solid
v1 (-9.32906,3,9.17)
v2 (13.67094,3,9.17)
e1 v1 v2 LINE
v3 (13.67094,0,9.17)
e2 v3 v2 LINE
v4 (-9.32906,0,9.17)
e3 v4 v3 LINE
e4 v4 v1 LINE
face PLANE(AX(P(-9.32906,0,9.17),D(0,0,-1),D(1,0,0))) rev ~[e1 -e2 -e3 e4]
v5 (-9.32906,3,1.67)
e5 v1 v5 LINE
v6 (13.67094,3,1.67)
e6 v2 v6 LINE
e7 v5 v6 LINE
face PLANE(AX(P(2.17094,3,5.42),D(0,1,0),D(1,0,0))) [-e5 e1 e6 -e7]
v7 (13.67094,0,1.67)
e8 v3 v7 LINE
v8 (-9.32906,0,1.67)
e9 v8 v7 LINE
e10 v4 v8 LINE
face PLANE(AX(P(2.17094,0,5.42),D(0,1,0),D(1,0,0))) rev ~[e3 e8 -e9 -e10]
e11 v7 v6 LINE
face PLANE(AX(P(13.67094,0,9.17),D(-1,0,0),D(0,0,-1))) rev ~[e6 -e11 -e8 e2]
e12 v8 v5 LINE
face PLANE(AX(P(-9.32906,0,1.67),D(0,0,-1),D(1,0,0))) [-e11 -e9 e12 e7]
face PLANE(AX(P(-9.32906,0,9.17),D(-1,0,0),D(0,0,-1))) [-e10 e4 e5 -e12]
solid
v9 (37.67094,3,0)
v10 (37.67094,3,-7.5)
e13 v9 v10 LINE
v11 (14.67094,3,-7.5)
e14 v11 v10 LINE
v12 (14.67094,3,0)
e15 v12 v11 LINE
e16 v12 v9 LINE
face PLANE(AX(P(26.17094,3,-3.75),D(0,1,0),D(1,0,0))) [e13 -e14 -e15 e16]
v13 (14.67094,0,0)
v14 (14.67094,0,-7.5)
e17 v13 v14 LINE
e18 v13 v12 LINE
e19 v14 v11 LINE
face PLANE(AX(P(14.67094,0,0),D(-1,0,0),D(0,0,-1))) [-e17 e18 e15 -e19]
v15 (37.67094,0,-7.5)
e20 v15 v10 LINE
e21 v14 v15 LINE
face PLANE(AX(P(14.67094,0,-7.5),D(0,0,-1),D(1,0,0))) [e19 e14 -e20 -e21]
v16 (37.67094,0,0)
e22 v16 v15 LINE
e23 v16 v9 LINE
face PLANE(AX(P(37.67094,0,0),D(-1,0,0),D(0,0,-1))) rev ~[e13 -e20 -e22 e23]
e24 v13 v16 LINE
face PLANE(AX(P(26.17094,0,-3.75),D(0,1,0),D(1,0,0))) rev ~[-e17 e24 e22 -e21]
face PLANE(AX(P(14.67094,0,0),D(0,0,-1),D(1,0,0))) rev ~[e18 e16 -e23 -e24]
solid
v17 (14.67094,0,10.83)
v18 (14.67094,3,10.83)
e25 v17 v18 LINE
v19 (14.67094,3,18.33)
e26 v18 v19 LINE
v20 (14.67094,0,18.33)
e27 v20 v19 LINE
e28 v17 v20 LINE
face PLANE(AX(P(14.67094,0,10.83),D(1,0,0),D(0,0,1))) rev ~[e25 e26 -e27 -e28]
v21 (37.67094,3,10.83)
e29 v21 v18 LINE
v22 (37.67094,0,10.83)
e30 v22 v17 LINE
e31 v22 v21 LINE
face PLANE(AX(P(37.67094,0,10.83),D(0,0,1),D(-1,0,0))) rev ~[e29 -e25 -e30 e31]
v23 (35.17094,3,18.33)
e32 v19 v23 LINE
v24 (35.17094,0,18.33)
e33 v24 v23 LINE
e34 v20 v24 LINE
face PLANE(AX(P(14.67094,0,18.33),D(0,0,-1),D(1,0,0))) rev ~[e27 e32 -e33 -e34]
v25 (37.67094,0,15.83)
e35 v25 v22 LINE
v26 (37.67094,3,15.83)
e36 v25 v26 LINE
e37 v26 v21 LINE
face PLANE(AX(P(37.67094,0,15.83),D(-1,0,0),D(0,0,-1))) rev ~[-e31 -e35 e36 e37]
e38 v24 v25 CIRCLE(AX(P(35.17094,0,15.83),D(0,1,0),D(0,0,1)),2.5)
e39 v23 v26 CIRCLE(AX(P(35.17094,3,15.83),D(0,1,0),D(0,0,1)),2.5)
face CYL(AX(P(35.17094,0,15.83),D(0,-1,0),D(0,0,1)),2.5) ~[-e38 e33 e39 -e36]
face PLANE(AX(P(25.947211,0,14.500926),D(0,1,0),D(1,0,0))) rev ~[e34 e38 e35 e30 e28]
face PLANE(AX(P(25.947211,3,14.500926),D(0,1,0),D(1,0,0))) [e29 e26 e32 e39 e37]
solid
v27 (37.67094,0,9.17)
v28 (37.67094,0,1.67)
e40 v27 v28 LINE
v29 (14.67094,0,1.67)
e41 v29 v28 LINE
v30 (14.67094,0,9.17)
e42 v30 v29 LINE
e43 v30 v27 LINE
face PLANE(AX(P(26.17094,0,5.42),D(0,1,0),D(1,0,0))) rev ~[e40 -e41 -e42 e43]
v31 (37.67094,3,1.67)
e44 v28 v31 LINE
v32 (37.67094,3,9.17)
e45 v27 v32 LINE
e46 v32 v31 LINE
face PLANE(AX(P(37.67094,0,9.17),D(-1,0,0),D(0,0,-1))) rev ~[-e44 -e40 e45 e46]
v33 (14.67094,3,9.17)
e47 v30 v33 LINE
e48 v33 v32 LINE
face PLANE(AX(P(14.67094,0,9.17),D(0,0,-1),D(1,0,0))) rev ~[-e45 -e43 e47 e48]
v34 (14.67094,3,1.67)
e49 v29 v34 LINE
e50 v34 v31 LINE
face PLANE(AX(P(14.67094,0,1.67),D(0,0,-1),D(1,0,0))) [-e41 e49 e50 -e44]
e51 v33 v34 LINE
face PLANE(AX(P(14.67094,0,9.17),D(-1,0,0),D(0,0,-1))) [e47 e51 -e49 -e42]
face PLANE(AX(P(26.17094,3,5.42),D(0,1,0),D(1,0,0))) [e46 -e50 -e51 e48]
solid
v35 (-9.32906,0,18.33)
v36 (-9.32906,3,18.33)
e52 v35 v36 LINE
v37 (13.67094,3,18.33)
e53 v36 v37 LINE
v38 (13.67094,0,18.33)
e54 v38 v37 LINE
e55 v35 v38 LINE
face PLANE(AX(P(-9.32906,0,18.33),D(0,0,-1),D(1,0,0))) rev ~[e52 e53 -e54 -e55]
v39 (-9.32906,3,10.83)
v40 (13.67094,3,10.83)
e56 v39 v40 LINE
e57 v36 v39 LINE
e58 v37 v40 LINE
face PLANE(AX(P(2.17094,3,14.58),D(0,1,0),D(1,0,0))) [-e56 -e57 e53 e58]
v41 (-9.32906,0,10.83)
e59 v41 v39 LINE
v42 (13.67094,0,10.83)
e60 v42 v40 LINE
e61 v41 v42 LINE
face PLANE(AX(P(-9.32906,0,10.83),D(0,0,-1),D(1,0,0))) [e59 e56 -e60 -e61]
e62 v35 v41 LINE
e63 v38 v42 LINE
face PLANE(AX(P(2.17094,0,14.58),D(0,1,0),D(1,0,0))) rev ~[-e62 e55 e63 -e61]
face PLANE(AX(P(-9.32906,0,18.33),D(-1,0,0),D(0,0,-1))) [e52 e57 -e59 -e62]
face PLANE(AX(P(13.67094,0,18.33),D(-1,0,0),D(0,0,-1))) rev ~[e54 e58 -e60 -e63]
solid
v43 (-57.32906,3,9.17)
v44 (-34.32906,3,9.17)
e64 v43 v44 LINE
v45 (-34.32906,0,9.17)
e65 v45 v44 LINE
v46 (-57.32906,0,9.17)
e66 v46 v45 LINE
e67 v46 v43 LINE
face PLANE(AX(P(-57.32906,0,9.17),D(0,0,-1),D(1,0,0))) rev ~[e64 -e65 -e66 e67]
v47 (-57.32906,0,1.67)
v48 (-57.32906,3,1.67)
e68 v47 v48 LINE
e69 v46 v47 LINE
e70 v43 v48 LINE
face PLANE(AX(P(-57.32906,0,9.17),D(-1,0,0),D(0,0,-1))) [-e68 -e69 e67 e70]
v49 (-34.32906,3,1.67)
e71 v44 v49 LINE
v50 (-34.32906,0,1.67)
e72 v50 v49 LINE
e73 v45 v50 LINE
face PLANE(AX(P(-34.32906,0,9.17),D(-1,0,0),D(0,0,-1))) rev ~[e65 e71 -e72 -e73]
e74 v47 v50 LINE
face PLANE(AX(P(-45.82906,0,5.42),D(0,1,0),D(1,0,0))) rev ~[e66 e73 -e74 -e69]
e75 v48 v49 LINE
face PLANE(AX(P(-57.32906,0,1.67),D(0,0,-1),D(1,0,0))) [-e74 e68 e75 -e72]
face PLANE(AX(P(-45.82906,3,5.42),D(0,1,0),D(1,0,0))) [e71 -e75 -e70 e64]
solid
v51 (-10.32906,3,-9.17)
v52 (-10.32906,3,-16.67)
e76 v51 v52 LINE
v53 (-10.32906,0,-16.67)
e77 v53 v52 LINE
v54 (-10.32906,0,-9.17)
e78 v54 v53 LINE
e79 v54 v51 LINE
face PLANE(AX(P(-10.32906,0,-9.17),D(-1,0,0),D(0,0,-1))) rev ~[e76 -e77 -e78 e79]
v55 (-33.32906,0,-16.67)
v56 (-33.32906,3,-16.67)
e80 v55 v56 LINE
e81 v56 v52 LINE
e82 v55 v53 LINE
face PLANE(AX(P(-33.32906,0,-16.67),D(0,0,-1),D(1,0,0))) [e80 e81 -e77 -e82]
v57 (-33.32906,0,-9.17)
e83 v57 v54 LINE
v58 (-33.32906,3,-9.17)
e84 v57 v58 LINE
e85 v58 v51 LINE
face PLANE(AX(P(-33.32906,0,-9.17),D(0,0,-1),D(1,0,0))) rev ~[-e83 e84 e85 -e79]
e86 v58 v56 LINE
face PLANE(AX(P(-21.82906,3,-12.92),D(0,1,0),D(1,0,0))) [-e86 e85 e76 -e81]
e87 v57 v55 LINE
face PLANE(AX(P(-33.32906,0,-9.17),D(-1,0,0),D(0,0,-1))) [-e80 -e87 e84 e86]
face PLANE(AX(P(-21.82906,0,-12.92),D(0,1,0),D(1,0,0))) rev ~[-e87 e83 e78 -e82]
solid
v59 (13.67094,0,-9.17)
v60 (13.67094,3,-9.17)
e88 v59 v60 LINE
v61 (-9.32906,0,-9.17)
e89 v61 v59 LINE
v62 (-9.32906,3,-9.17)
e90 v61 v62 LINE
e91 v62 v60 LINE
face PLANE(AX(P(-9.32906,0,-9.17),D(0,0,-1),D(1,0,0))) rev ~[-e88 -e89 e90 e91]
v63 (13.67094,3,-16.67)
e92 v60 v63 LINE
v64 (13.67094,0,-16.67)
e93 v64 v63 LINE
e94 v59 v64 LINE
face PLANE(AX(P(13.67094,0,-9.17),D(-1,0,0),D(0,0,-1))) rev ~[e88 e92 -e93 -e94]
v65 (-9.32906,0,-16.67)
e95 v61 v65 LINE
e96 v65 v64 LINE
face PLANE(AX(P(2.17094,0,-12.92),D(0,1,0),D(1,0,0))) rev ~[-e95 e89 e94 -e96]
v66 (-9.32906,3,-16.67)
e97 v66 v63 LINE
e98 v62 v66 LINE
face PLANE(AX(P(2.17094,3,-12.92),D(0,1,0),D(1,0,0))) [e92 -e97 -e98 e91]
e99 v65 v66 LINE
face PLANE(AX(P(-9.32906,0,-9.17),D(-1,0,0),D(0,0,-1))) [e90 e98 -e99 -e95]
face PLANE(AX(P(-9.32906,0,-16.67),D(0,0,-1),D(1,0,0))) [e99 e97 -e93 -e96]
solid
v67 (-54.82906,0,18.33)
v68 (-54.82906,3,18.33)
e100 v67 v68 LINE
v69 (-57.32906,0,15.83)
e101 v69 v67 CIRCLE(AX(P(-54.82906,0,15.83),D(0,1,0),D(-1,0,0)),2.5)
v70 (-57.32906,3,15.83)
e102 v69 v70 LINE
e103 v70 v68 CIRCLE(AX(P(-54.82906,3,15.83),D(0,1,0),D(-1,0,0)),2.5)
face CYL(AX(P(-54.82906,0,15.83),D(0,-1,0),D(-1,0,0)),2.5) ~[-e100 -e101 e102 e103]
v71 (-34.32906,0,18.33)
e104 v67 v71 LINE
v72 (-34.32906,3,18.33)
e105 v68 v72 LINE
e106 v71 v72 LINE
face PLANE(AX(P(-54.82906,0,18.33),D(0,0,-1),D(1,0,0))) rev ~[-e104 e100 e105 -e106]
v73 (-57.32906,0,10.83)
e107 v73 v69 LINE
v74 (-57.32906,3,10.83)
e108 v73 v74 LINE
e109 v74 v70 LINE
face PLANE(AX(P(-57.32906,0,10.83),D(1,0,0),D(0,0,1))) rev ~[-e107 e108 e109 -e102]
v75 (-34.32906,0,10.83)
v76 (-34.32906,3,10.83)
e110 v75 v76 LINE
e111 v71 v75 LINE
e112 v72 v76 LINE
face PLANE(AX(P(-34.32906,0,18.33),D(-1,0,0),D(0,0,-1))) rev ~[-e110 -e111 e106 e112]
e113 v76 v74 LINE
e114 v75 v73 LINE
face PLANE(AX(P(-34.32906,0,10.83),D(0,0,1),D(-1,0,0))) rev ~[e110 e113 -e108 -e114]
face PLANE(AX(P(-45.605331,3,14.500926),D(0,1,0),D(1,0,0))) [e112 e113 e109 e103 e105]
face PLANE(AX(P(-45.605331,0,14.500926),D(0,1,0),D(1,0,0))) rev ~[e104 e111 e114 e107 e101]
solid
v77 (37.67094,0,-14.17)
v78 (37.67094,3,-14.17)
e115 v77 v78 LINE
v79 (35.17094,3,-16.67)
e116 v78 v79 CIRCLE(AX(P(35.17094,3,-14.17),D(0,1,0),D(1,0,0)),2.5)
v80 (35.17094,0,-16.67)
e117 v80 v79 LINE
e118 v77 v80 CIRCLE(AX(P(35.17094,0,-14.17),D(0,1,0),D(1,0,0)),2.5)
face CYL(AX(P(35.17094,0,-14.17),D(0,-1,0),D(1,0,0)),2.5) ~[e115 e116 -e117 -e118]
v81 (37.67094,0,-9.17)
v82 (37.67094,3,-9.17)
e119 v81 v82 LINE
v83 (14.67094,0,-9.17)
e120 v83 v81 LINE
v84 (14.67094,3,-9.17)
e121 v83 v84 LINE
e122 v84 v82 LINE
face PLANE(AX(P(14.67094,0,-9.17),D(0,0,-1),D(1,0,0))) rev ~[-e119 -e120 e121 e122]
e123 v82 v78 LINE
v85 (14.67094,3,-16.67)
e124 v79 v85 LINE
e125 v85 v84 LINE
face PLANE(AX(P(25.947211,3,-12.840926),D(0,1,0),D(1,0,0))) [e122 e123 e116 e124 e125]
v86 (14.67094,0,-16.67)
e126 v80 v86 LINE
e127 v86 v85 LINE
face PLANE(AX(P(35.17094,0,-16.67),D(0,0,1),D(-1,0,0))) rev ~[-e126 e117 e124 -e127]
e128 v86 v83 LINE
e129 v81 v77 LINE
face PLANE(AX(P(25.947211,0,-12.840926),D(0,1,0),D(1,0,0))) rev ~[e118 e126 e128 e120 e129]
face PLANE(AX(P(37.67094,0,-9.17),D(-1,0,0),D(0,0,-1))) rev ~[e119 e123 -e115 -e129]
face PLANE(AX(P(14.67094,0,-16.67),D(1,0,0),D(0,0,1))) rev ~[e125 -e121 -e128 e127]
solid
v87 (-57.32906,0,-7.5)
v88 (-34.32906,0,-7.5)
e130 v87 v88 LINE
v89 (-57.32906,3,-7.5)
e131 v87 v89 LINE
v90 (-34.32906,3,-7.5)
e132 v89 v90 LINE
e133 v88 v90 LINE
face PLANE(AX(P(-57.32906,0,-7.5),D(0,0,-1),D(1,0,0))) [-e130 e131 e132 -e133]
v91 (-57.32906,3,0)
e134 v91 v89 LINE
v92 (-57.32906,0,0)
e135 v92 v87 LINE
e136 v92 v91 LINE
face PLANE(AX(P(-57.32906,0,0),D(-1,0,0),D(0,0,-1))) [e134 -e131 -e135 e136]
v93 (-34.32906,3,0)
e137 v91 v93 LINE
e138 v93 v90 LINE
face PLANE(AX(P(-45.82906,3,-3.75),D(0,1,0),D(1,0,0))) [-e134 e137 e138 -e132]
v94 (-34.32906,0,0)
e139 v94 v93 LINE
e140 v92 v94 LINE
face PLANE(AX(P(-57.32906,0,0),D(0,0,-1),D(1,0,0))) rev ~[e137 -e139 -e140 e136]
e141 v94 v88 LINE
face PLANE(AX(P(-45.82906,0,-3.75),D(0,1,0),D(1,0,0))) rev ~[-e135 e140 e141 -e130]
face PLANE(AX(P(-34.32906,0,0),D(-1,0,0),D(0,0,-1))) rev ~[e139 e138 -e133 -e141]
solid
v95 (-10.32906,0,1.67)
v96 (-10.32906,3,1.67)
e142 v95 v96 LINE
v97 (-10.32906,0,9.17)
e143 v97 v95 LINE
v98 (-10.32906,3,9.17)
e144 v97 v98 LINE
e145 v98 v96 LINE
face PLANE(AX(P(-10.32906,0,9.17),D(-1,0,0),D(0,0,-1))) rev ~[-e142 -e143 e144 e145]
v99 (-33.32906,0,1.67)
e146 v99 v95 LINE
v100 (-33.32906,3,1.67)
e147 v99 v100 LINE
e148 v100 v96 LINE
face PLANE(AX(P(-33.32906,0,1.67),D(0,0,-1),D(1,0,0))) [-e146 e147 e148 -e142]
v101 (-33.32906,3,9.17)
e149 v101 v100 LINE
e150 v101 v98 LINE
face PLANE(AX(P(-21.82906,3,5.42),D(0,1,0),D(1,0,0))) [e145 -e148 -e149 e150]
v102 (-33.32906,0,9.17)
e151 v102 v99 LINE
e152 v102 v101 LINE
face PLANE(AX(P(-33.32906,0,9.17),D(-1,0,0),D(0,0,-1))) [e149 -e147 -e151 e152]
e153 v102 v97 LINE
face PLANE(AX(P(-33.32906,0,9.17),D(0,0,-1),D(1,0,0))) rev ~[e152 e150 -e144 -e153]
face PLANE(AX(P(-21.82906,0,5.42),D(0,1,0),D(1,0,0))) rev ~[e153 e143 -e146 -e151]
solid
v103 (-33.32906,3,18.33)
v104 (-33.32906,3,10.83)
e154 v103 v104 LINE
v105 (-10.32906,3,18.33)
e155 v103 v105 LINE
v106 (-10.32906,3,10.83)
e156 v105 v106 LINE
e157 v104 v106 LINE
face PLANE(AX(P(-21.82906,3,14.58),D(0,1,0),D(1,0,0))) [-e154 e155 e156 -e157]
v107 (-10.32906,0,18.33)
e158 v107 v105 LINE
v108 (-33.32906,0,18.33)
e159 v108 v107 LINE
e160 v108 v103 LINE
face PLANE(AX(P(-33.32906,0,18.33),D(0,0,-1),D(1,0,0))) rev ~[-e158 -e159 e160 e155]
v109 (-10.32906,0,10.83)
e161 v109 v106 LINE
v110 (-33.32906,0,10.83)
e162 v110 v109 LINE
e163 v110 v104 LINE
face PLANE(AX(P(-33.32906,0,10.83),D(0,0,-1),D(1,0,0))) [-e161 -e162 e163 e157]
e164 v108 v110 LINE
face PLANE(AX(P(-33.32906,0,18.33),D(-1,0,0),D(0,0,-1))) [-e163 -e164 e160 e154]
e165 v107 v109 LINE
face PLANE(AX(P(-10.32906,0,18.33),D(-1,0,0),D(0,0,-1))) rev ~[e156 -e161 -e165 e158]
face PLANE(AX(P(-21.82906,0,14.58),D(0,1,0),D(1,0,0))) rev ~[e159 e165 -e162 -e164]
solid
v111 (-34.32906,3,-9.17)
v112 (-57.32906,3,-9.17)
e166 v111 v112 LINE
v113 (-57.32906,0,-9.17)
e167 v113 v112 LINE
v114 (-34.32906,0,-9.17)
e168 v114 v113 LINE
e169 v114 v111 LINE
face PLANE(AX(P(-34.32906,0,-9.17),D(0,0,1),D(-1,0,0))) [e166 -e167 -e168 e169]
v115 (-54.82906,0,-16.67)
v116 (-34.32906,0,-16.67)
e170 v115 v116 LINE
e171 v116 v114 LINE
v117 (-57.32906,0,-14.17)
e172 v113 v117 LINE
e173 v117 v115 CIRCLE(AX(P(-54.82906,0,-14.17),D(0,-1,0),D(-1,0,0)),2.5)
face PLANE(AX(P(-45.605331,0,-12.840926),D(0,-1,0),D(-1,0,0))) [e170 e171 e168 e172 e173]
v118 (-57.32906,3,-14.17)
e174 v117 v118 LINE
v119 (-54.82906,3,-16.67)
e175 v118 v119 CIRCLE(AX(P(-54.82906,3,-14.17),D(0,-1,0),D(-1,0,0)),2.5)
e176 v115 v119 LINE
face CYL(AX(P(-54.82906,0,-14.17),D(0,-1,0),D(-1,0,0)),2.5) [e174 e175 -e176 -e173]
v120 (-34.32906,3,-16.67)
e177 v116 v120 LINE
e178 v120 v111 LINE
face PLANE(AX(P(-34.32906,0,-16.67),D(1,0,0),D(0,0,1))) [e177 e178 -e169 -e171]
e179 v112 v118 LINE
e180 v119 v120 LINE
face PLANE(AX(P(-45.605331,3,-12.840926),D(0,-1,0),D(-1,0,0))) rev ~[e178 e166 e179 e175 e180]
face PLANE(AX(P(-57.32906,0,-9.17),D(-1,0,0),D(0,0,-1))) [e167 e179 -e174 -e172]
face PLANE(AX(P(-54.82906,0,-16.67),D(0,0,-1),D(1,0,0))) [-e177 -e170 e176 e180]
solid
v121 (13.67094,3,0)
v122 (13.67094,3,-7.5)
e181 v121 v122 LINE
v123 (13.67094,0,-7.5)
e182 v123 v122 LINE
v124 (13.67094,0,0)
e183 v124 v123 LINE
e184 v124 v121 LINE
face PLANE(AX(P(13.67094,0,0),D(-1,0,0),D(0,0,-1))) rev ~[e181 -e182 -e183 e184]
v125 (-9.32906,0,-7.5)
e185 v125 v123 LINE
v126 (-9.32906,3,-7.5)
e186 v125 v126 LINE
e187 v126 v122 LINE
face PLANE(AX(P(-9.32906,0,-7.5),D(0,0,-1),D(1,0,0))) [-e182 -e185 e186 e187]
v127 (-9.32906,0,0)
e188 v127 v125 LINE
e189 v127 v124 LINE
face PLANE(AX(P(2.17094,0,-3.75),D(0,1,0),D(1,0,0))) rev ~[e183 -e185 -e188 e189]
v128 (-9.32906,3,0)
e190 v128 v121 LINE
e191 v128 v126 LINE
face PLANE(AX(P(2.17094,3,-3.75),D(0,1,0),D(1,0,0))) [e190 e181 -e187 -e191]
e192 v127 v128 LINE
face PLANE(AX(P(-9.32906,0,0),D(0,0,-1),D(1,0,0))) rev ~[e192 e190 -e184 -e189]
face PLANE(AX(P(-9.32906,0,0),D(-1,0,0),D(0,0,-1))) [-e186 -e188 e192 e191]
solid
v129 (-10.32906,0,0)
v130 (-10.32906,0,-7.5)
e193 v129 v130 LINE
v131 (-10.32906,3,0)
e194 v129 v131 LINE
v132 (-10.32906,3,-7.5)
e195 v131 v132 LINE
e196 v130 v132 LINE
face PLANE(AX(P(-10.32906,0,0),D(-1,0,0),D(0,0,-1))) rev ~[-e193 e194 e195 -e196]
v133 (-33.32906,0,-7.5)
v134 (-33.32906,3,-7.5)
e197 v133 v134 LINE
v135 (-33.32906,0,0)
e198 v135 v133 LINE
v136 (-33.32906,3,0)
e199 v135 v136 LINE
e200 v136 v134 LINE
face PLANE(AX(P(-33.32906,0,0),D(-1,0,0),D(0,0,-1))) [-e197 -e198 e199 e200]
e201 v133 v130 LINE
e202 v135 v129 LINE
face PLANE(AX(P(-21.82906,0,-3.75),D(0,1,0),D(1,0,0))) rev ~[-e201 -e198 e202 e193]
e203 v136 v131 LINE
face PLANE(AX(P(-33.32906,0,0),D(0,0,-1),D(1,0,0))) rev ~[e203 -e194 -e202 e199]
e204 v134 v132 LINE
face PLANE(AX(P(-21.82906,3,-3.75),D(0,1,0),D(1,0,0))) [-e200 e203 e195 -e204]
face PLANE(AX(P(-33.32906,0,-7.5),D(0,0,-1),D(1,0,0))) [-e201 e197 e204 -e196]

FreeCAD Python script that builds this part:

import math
import FreeCAD as App
import Part
import Sketcher

V = App.Vector

doc = App.newDocument("Part")
body = doc.addObject("PartDesign::Body", "Body")

sketch1 = body.newObject("Sketcher::SketchObject", "Sketch")
sketch1.AttachmentSupport = (doc.getObject("XZ_Plane"), [""])
sketch1.MapMode = "FlatFace"
sketch1.addGeometry(Part.LineSegment(V(-34.3, -16.7, 0), V(-54.8, -16.7, 0)), False)
sketch1.addGeometry(Part.ArcOfCircle(Part.Circle(V(-54.8, -14.2, 0), V(0, 0, 1), 2.5), math.radians(180), math.radians(270)), False)
sketch1.addGeometry(Part.LineSegment(V(-57.3, -14.2, 0), V(-57.3, -9.2, 0)), False)
sketch1.addGeometry(Part.LineSegment(V(-57.3, -9.2, 0), V(-34.3, -9.2, 0)), False)
sketch1.addGeometry(Part.LineSegment(V(-34.3, -9.2, 0), V(-34.3, -16.7, 0)), False)
sketch1.addConstraint(Sketcher.Constraint("Tangent", 0, 2, 1, 2))
sketch1.addConstraint(Sketcher.Constraint("Tangent", 1, 1, 2, 1))
sketch1.addConstraint(Sketcher.Constraint("Coincident", 2, 2, 3, 1))
sketch1.addConstraint(Sketcher.Constraint("Coincident", 3, 2, 4, 1))
sketch1.addConstraint(Sketcher.Constraint("Coincident", 4, 2, 0, 1))
sketch1.addConstraint(Sketcher.Constraint("Horizontal", 0))
sketch1.addConstraint(Sketcher.Constraint("Vertical", 2))
sketch1.addConstraint(Sketcher.Constraint("Horizontal", 3))
sketch1.addConstraint(Sketcher.Constraint("Vertical", 4))
sketch1.addConstraint(Sketcher.Constraint("Radius", 1, 2.5))
sketch1.addConstraint(Sketcher.Constraint("DistanceX", 3, 1, 3, 2, 23.0))
sketch1.addConstraint(Sketcher.Constraint("DistanceY", 2, 1, 2, 2, 5.0))
sketch1.addConstraint(Sketcher.Constraint("DistanceY", 1, 3, -1, 1, 14.17))
sketch1.addConstraint(Sketcher.Constraint("DistanceX", 1, 3, -1, 1, 54.82906))
pad1 = body.newObject("PartDesign::Pad", "Pad")
pad1.Profile = sketch1
pad1.Length = 3
pad1.Reversed = True
body2 = doc.addObject("PartDesign::Body", "Body001")

sketch2 = body2.newObject("Sketcher::SketchObject", "Sketch001")
sketch2.AttachmentSupport = (doc.getObject("XZ_Plane001"), [""])
sketch2.MapMode = "FlatFace"
sketch2.addGeometry(Part.LineSegment(V(-57, -8, 0), V(-57, 0, 0)), False)
sketch2.addGeometry(Part.LineSegment(V(-57, 0, 0), V(-34, 0, 0)), False)
sketch2.addGeometry(Part.LineSegment(V(-34, 0, 0), V(-34, -8, 0)), False)
sketch2.addGeometry(Part.LineSegment(V(-34, -8, 0), V(-57, -8, 0)), False)
sketch2.addConstraint(Sketcher.Constraint("Coincident", 0, 2, 1, 1))
sketch2.addConstraint(Sketcher.Constraint("Coincident", 1, 2, 2, 1))
sketch2.addConstraint(Sketcher.Constraint("Coincident", 2, 2, 3, 1))
sketch2.addConstraint(Sketcher.Constraint("Coincident", 3, 2, 0, 1))
sketch2.addConstraint(Sketcher.Constraint("Vertical", 0))
sketch2.addConstraint(Sketcher.Constraint("Horizontal", 1))
sketch2.addConstraint(Sketcher.Constraint("Vertical", 2))
sketch2.addConstraint(Sketcher.Constraint("Horizontal", 3))
sketch2.addConstraint(Sketcher.Constraint("PointOnObject", 0, 2, -1))
sketch2.addConstraint(Sketcher.Constraint("DistanceX", 1, 1, 1, 2, 23.0))
sketch2.addConstraint(Sketcher.Constraint("DistanceY", 0, 1, 0, 2, 7.5))
sketch2.addConstraint(Sketcher.Constraint("DistanceX", 0, 2, -1, 1, 57.32906))
pad2 = body2.newObject("PartDesign::Pad", "Pad001")
pad2.Profile = sketch2
pad2.Length = 3
pad2.Reversed = True
body3 = doc.addObject("PartDesign::Body", "Body002")

sketch3 = body3.newObject("Sketcher::SketchObject", "Sketch002")
sketch3.AttachmentSupport = (doc.getObject("XZ_Plane002"), [""])
sketch3.MapMode = "FlatFace"
sketch3.addGeometry(Part.LineSegment(V(-57, 2, 0), V(-57, 9, 0)), False)
sketch3.addGeometry(Part.LineSegment(V(-57, 9, 0), V(-34, 9, 0)), False)
sketch3.addGeometry(Part.LineSegment(V(-34, 9, 0), V(-34, 2, 0)), False)
sketch3.addGeometry(Part.LineSegment(V(-34, 2, 0), V(-57, 2, 0)), False)
sketch3.addConstraint(Sketcher.Constraint("Coincident", 0, 2, 1, 1))
sketch3.addConstraint(Sketcher.Constraint("Coincident", 1, 2, 2, 1))
sketch3.addConstraint(Sketcher.Constraint("Coincident", 2, 2, 3, 1))
sketch3.addConstraint(Sketcher.Constraint("Coincident", 3, 2, 0, 1))
sketch3.addConstraint(Sketcher.Constraint("Vertical", 0))
sketch3.addConstraint(Sketcher.Constraint("Horizontal", 1))
sketch3.addConstraint(Sketcher.Constraint("Vertical", 2))
sketch3.addConstraint(Sketcher.Constraint("Horizontal", 3))
sketch3.addConstraint(Sketcher.Constraint("DistanceX", 1, 1, 1, 2, 23.0))
sketch3.addConstraint(Sketcher.Constraint("DistanceY", 0, 1, 0, 2, 7.5))
sketch3.addConstraint(Sketcher.Constraint("DistanceY", -1, 1, 0, 2, 9.17))
sketch3.addConstraint(Sketcher.Constraint("DistanceX", 0, 2, -1, 1, 57.32906))
pad3 = body3.newObject("PartDesign::Pad", "Pad002")
pad3.Profile = sketch3
pad3.Length = 3
pad3.Reversed = True
body4 = doc.addObject("PartDesign::Body", "Body003")

sketch4 = body4.newObject("Sketcher::SketchObject", "Sketch003")
sketch4.AttachmentSupport = (doc.getObject("XZ_Plane003"), [""])
sketch4.MapMode = "FlatFace"
sketch4.addGeometry(Part.LineSegment(V(-57.3, 10.8, 0), V(-57.3, 15.8, 0)), False)
sketch4.addGeometry(Part.ArcOfCircle(Part.Circle(V(-54.8, 15.8, 0), V(0, 0, 1), 2.5), math.radians(90), math.radians(180)), False)
sketch4.addGeometry(Part.LineSegment(V(-54.8, 18.3, 0), V(-34.3, 18.3, 0)), False)
sketch4.addGeometry(Part.LineSegment(V(-34.3, 18.3, 0), V(-34.3, 10.8, 0)), False)
sketch4.addGeometry(Part.LineSegment(V(-34.3, 10.8, 0), V(-57.3, 10.8, 0)), False)
sketch4.addConstraint(Sketcher.Constraint("Tangent", 0, 2, 1, 2))
sketch4.addConstraint(Sketcher.Constraint("Tangent", 1, 1, 2, 1))
sketch4.addConstraint(Sketcher.Constraint("Coincident", 2, 2, 3, 1))
sketch4.addConstraint(Sketcher.Constraint("Coincident", 3, 2, 4, 1))
sketch4.addConstraint(Sketcher.Constraint("Coincident", 4, 2, 0, 1))
sketch4.addConstraint(Sketcher.Constraint("Vertical", 0))
sketch4.addConstraint(Sketcher.Constraint("Horizontal", 2))
sketch4.addConstraint(Sketcher.Constraint("Vertical", 3))
sketch4.addConstraint(Sketcher.Constraint("Horizontal", 4))
sketch4.addConstraint(Sketcher.Constraint("Radius", 1, 2.5))
sketch4.addConstraint(Sketcher.Constraint("DistanceX", 4, 2, 4, 1, 23.0))
sketch4.addConstraint(Sketcher.Constraint("DistanceY", 0, 1, 0, 2, 5.0))
sketch4.addConstraint(Sketcher.Constraint("DistanceY", -1, 1, 1, 3, 15.83))
sketch4.addConstraint(Sketcher.Constraint("DistanceX", 1, 3, -1, 1, 54.82906))
pad4 = body4.newObject("PartDesign::Pad", "Pad003")
pad4.Profile = sketch4
pad4.Length = 3
pad4.Reversed = True
body5 = doc.addObject("PartDesign::Body", "Body004")

sketch5 = body5.newObject("Sketcher::SketchObject", "Sketch004")
sketch5.AttachmentSupport = (doc.getObject("XZ_Plane004"), [""])
sketch5.MapMode = "FlatFace"
sketch5.addGeometry(Part.LineSegment(V(-33, 11, 0), V(-33, 18, 0)), False)
sketch5.addGeometry(Part.LineSegment(V(-33, 18, 0), V(-10, 18, 0)), False)
sketch5.addGeometry(Part.LineSegment(V(-10, 18, 0), V(-10, 11, 0)), False)
sketch5.addGeometry(Part.LineSegment(V(-10, 11, 0), V(-33, 11, 0)), False)
sketch5.addConstraint(Sketcher.Constraint("Coincident", 0, 2, 1, 1))
sketch5.addConstraint(Sketcher.Constraint("Coincident", 1, 2, 2, 1))
sketch5.addConstraint(Sketcher.Constraint("Coincident", 2, 2, 3, 1))
sketch5.addConstraint(Sketcher.Constraint("Coincident", 3, 2, 0, 1))
sketch5.addConstraint(Sketcher.Constraint("Vertical", 0))
sketch5.addConstraint(Sketcher.Constraint("Horizontal", 1))
sketch5.addConstraint(Sketcher.Constraint("Vertical", 2))
sketch5.addConstraint(Sketcher.Constraint("Horizontal", 3))
sketch5.addConstraint(Sketcher.Constraint("DistanceX", 1, 1, 1, 2, 23.0))
sketch5.addConstraint(Sketcher.Constraint("DistanceY", 0, 1, 0, 2, 7.5))
sketch5.addConstraint(Sketcher.Constraint("DistanceY", -1, 1, 0, 2, 18.33))
sketch5.addConstraint(Sketcher.Constraint("DistanceX", 0, 2, -1, 1, 33.32906))
pad5 = body5.newObject("PartDesign::Pad", "Pad004")
pad5.Profile = sketch5
pad5.Length = 3
pad5.Reversed = True
body6 = doc.addObject("PartDesign::Body", "Body005")

sketch6 = body6.newObject("Sketcher::SketchObject", "Sketch005")
sketch6.AttachmentSupport = (doc.getObject("XZ_Plane005"), [""])
sketch6.MapMode = "FlatFace"
sketch6.addGeometry(Part.LineSegment(V(-33, 2, 0), V(-33, 9, 0)), False)
sketch6.addGeometry(Part.LineSegment(V(-33, 9, 0), V(-10, 9, 0)), False)
sketch6.addGeometry(Part.LineSegment(V(-10, 9, 0), V(-10, 2, 0)), False)
sketch6.addGeometry(Part.LineSegment(V(-10, 2, 0), V(-33, 2, 0)), False)
sketch6.addConstraint(Sketcher.Constraint("Coincident", 0, 2, 1, 1))
sketch6.addConstraint(Sketcher.Constraint("Coincident", 1, 2, 2, 1))
sketch6.addConstraint(Sketcher.Constraint("Coincident", 2, 2, 3, 1))
sketch6.addConstraint(Sketcher.Constraint("Coincident", 3, 2, 0, 1))
sketch6.addConstraint(Sketcher.Constraint("Vertical", 0))
sketch6.addConstraint(Sketcher.Constraint("Horizontal", 1))
sketch6.addConstraint(Sketcher.Constraint("Vertical", 2))
sketch6.addConstraint(Sketcher.Constraint("Horizontal", 3))
sketch6.addConstraint(Sketcher.Constraint("DistanceX", 1, 1, 1, 2, 23.0))
sketch6.addConstraint(Sketcher.Constraint("DistanceY", 0, 1, 0, 2, 7.5))
sketch6.addConstraint(Sketcher.Constraint("DistanceY", -1, 1, 0, 2, 9.17))
sketch6.addConstraint(Sketcher.Constraint("DistanceX", 0, 2, -1, 1, 33.32906))
pad6 = body6.newObject("PartDesign::Pad", "Pad005")
pad6.Profile = sketch6
pad6.Length = 3
pad6.Reversed = True
body7 = doc.addObject("PartDesign::Body", "Body006")

sketch7 = body7.newObject("Sketcher::SketchObject", "Sketch006")
sketch7.AttachmentSupport = (doc.getObject("XZ_Plane006"), [""])
sketch7.MapMode = "FlatFace"
sketch7.addGeometry(Part.LineSegment(V(-33, -8, 0), V(-33, 0, 0)), False)
sketch7.addGeometry(Part.LineSegment(V(-33, 0, 0), V(-10, 0, 0)), False)
sketch7.addGeometry(Part.LineSegment(V(-10, 0, 0), V(-10, -8, 0)), False)
sketch7.addGeometry(Part.LineSegment(V(-10, -8, 0), V(-33, -8, 0)), False)
sketch7.addConstraint(Sketcher.Constraint("Coincident", 0, 2, 1, 1))
sketch7.addConstraint(Sketcher.Constraint("Coincident", 1, 2, 2, 1))
sketch7.addConstraint(Sketcher.Constraint("Coincident", 2, 2, 3, 1))
sketch7.addConstraint(Sketcher.Constraint("Coincident", 3, 2, 0, 1))
sketch7.addConstraint(Sketcher.Constraint("Vertical", 0))
sketch7.addConstraint(Sketcher.Constraint("Horizontal", 1))
sketch7.addConstraint(Sketcher.Constraint("Vertical", 2))
sketch7.addConstraint(Sketcher.Constraint("Horizontal", 3))
sketch7.addConstraint(Sketcher.Constraint("PointOnObject", 0, 2, -1))
sketch7.addConstraint(Sketcher.Constraint("DistanceX", 1, 1, 1, 2, 23.0))
sketch7.addConstraint(Sketcher.Constraint("DistanceY", 0, 1, 0, 2, 7.5))
sketch7.addConstraint(Sketcher.Constraint("DistanceX", 0, 2, -1, 1, 33.32906))
pad7 = body7.newObject("PartDesign::Pad", "Pad006")
pad7.Profile = sketch7
pad7.Length = 3
pad7.Reversed = True
body8 = doc.addObject("PartDesign::Body", "Body007")

sketch8 = body8.newObject("Sketcher::SketchObject", "Sketch007")
sketch8.AttachmentSupport = (doc.getObject("XZ_Plane007"), [""])
sketch8.MapMode = "FlatFace"
sketch8.addGeometry(Part.LineSegment(V(-33, -17, 0), V(-33, -9, 0)), False)
sketch8.addGeometry(Part.LineSegment(V(-33, -9, 0), V(-10, -9, 0)), False)
sketch8.addGeometry(Part.LineSegment(V(-10, -9, 0), V(-10, -17, 0)), False)
sketch8.addGeometry(Part.LineSegment(V(-10, -17, 0), V(-33, -17, 0)), False)
sketch8.addConstraint(Sketcher.Constraint("Coincident", 0, 2, 1, 1))
sketch8.addConstraint(Sketcher.Constraint("Coincident", 1, 2, 2, 1))
sketch8.addConstraint(Sketcher.Constraint("Coincident", 2, 2, 3, 1))
sketch8.addConstraint(Sketcher.Constraint("Coincident", 3, 2, 0, 1))
sketch8.addConstraint(Sketcher.Constraint("Vertical", 0))
sketch8.addConstraint(Sketcher.Constraint("Horizontal", 1))
sketch8.addConstraint(Sketcher.Constraint("Vertical", 2))
sketch8.addConstraint(Sketcher.Constraint("Horizontal", 3))
sketch8.addConstraint(Sketcher.Constraint("DistanceX", 1, 1, 1, 2, 23.0))
sketch8.addConstraint(Sketcher.Constraint("DistanceY", 0, 1, 0, 2, 7.5))
sketch8.addConstraint(Sketcher.Constraint("DistanceY", 0, 2, -1, 1, 9.17))
sketch8.addConstraint(Sketcher.Constraint("DistanceX", 0, 2, -1, 1, 33.32906))
pad8 = body8.newObject("PartDesign::Pad", "Pad007")
pad8.Profile = sketch8
pad8.Length = 3
pad8.Reversed = True
body9 = doc.addObject("PartDesign::Body", "Body008")

sketch9 = body9.newObject("Sketcher::SketchObject", "Sketch008")
sketch9.AttachmentSupport = (doc.getObject("XZ_Plane008"), [""])
sketch9.MapMode = "FlatFace"
sketch9.addGeometry(Part.LineSegment(V(-9, -17, 0), V(-9, -9, 0)), False)
sketch9.addGeometry(Part.LineSegment(V(-9, -9, 0), V(14, -9, 0)), False)
sketch9.addGeometry(Part.LineSegment(V(14, -9, 0), V(14, -17, 0)), False)
sketch9.addGeometry(Part.LineSegment(V(14, -17, 0), V(-9, -17, 0)), False)
sketch9.addConstraint(Sketcher.Constraint("Coincident", 0, 2, 1, 1))
sketch9.addConstraint(Sketcher.Constraint("Coincident", 1, 2, 2, 1))
sketch9.addConstraint(Sketcher.Constraint("Coincident", 2, 2, 3, 1))
sketch9.addConstraint(Sketcher.Constraint("Coincident", 3, 2, 0, 1))
sketch9.addConstraint(Sketcher.Constraint("Vertical", 0))
sketch9.addConstraint(Sketcher.Constraint("Horizontal", 1))
sketch9.addConstraint(Sketcher.Constraint("Vertical", 2))
sketch9.addConstraint(Sketcher.Constraint("Horizontal", 3))
sketch9.addConstraint(Sketcher.Constraint("DistanceX", 1, 1, 1, 2, 23.0))
sketch9.addConstraint(Sketcher.Constraint("DistanceY", 0, 1, 0, 2, 7.5))
sketch9.addConstraint(Sketcher.Constraint("DistanceY", 0, 2, -1, 1, 9.17))
sketch9.addConstraint(Sketcher.Constraint("DistanceX", 0, 2, -1, 1, 9.32906))
pad9 = body9.newObject("PartDesign::Pad", "Pad008")
pad9.Profile = sketch9
pad9.Length = 3
pad9.Reversed = True
body10 = doc.addObject("PartDesign::Body", "Body009")

sketch10 = body10.newObject("Sketcher::SketchObject", "Sketch009")
sketch10.AttachmentSupport = (doc.getObject("XZ_Plane009"), [""])
sketch10.MapMode = "FlatFace"
sketch10.addGeometry(Part.LineSegment(V(-9, -8, 0), V(-9, 0, 0)), False)
sketch10.addGeometry(Part.LineSegment(V(-9, 0, 0), V(14, 0, 0)), False)
sketch10.addGeometry(Part.LineSegment(V(14, 0, 0), V(14, -8, 0)), False)
sketch10.addGeometry(Part.LineSegment(V(14, -8, 0), V(-9, -8, 0)), False)
sketch10.addConstraint(Sketcher.Constraint("Coincident", 0, 2, 1, 1))
sketch10.addConstraint(Sketcher.Constraint("Coincident", 1, 2, 2, 1))
sketch10.addConstraint(Sketcher.Constraint("Coincident", 2, 2, 3, 1))
sketch10.addConstraint(Sketcher.Constraint("Coincident", 3, 2, 0, 1))
sketch10.addConstraint(Sketcher.Constraint("Vertical", 0))
sketch10.addConstraint(Sketcher.Constraint("Horizontal", 1))
sketch10.addConstraint(Sketcher.Constraint("Vertical", 2))
sketch10.addConstraint(Sketcher.Constraint("Horizontal", 3))
sketch10.addConstraint(Sketcher.Constraint("PointOnObject", 0, 2, -1))
sketch10.addConstraint(Sketcher.Constraint("DistanceX", 1, 1, 1, 2, 23.0))
sketch10.addConstraint(Sketcher.Constraint("DistanceY", 0, 1, 0, 2, 7.5))
sketch10.addConstraint(Sketcher.Constraint("DistanceX", 0, 2, -1, 1, 9.32906))
pad10 = body10.newObject("PartDesign::Pad", "Pad009")
pad10.Profile = sketch10
pad10.Length = 3
pad10.Reversed = True
body11 = doc.addObject("PartDesign::Body", "Body010")

sketch11 = body11.newObject("Sketcher::SketchObject", "Sketch010")
sketch11.AttachmentSupport = (doc.getObject("XZ_Plane010"), [""])
sketch11.MapMode = "FlatFace"
sketch11.addGeometry(Part.LineSegment(V(-9, 11, 0), V(-9, 18, 0)), False)
sketch11.addGeometry(Part.LineSegment(V(-9, 18, 0), V(14, 18, 0)), False)
sketch11.addGeometry(Part.LineSegment(V(14, 18, 0), V(14, 11, 0)), False)
sketch11.addGeometry(Part.LineSegment(V(14, 11, 0), V(-9, 11, 0)), False)
sketch11.addConstraint(Sketcher.Constraint("Coincident", 0, 2, 1, 1))
sketch11.addConstraint(Sketcher.Constraint("Coincident", 1, 2, 2, 1))
sketch11.addConstraint(Sketcher.Constraint("Coincident", 2, 2, 3, 1))
sketch11.addConstraint(Sketcher.Constraint("Coincident", 3, 2, 0, 1))
sketch11.addConstraint(Sketcher.Constraint("Vertical", 0))
sketch11.addConstraint(Sketcher.Constraint("Horizontal", 1))
sketch11.addConstraint(Sketcher.Constraint("Vertical", 2))
sketch11.addConstraint(Sketcher.Constraint("Horizontal", 3))
sketch11.addConstraint(Sketcher.Constraint("DistanceX", 1, 1, 1, 2, 23.0))
sketch11.addConstraint(Sketcher.Constraint("DistanceY", 0, 1, 0, 2, 7.5))
sketch11.addConstraint(Sketcher.Constraint("DistanceY", -1, 1, 0, 2, 18.33))
sketch11.addConstraint(Sketcher.Constraint("DistanceX", 0, 2, -1, 1, 9.32906))
pad11 = body11.newObject("PartDesign::Pad", "Pad010")
pad11.Profile = sketch11
pad11.Length = 3
pad11.Reversed = True
body12 = doc.addObject("PartDesign::Body", "Body011")

sketch12 = body12.newObject("Sketcher::SketchObject", "Sketch011")
sketch12.AttachmentSupport = (doc.getObject("XZ_Plane011"), [""])
sketch12.MapMode = "FlatFace"
sketch12.addGeometry(Part.LineSegment(V(14.7, 18.3, 0), V(35.2, 18.3, 0)), False)
sketch12.addGeometry(Part.ArcOfCircle(Part.Circle(V(35.2, 15.8, 0), V(0, 0, 1), 2.5), math.radians(0), math.radians(90)), False)
sketch12.addGeometry(Part.LineSegment(V(37.7, 15.8, 0), V(37.7, 10.8, 0)), False)
sketch12.addGeometry(Part.LineSegment(V(37.7, 10.8, 0), V(14.7, 10.8, 0)), False)
sketch12.addGeometry(Part.LineSegment(V(14.7, 10.8, 0), V(14.7, 18.3, 0)), False)
sketch12.addConstraint(Sketcher.Constraint("Tangent", 0, 2, 1, 2))
sketch12.addConstraint(Sketcher.Constraint("Tangent", 1, 1, 2, 1))
sketch12.addConstraint(Sketcher.Constraint("Coincident", 2, 2, 3, 1))
sketch12.addConstraint(Sketcher.Constraint("Coincident", 3, 2, 4, 1))
sketch12.addConstraint(Sketcher.Constraint("Coincident", 4, 2, 0, 1))
sketch12.addConstraint(Sketcher.Constraint("Horizontal", 0))
sketch12.addConstraint(Sketcher.Constraint("Vertical", 2))
sketch12.addConstraint(Sketcher.Constraint("Horizontal", 3))
sketch12.addConstraint(Sketcher.Constraint("Vertical", 4))
sketch12.addConstraint(Sketcher.Constraint("Radius", 1, 2.5))
sketch12.addConstraint(Sketcher.Constraint("DistanceX", 3, 2, 3, 1, 23.0))
sketch12.addConstraint(Sketcher.Constraint("DistanceY", 2, 2, 2, 1, 5.0))
sketch12.addConstraint(Sketcher.Constraint("DistanceY", -1, 1, 1, 3, 15.83))
sketch12.addConstraint(Sketcher.Constraint("DistanceX", -1, 1, 1, 3, 35.17094))
pad12 = body12.newObject("PartDesign::Pad", "Pad011")
pad12.Profile = sketch12
pad12.Length = 3
pad12.Reversed = True
body13 = doc.addObject("PartDesign::Body", "Body012")

sketch13 = body13.newObject("Sketcher::SketchObject", "Sketch012")
sketch13.AttachmentSupport = (doc.getObject("XZ_Plane012"), [""])
sketch13.MapMode = "FlatFace"
sketch13.addGeometry(Part.LineSegment(V(15, 2, 0), V(15, 9, 0)), False)
sketch13.addGeometry(Part.LineSegment(V(15, 9, 0), V(38, 9, 0)), False)
sketch13.addGeometry(Part.LineSegment(V(38, 9, 0), V(38, 2, 0)), False)
sketch13.addGeometry(Part.LineSegment(V(38, 2, 0), V(15, 2, 0)), False)
sketch13.addConstraint(Sketcher.Constraint("Coincident", 0, 2, 1, 1))
sketch13.addConstraint(Sketcher.Constraint("Coincident", 1, 2, 2, 1))
sketch13.addConstraint(Sketcher.Constraint("Coincident", 2, 2, 3, 1))
sketch13.addConstraint(Sketcher.Constraint("Coincident", 3, 2, 0, 1))
sketch13.addConstraint(Sketcher.Constraint("Vertical", 0))
sketch13.addConstraint(Sketcher.Constraint("Horizontal", 1))
sketch13.addConstraint(Sketcher.Constraint("Vertical", 2))
sketch13.addConstraint(Sketcher.Constraint("Horizontal", 3))
sketch13.addConstraint(Sketcher.Constraint("DistanceX", 1, 1, 1, 2, 23.0))
sketch13.addConstraint(Sketcher.Constraint("DistanceY", 0, 1, 0, 2, 7.5))
sketch13.addConstraint(Sketcher.Constraint("DistanceY", -1, 1, 0, 2, 9.17))
sketch13.addConstraint(Sketcher.Constraint("DistanceX", -1, 1, 0, 2, 14.67094))
pad13 = body13.newObject("PartDesign::Pad", "Pad012")
pad13.Profile = sketch13
pad13.Length = 3
pad13.Reversed = True
body14 = doc.addObject("PartDesign::Body", "Body013")

sketch14 = body14.newObject("Sketcher::SketchObject", "Sketch013")
sketch14.AttachmentSupport = (doc.getObject("XZ_Plane013"), [""])
sketch14.MapMode = "FlatFace"
sketch14.addGeometry(Part.LineSegment(V(15, -8, 0), V(15, 0, 0)), False)
sketch14.addGeometry(Part.LineSegment(V(15, 0, 0), V(38, 0, 0)), False)
sketch14.addGeometry(Part.LineSegment(V(38, 0, 0), V(38, -8, 0)), False)
sketch14.addGeometry(Part.LineSegment(V(38, -8, 0), V(15, -8, 0)), False)
sketch14.addConstraint(Sketcher.Constraint("Coincident", 0, 2, 1, 1))
sketch14.addConstraint(Sketcher.Constraint("Coincident", 1, 2, 2, 1))
sketch14.addConstraint(Sketcher.Constraint("Coincident", 2, 2, 3, 1))
sketch14.addConstraint(Sketcher.Constraint("Coincident", 3, 2, 0, 1))
sketch14.addConstraint(Sketcher.Constraint("Vertical", 0))
sketch14.addConstraint(Sketcher.Constraint("Horizontal", 1))
sketch14.addConstraint(Sketcher.Constraint("Vertical", 2))
sketch14.addConstraint(Sketcher.Constraint("Horizontal", 3))
sketch14.addConstraint(Sketcher.Constraint("PointOnObject", 0, 2, -1))
sketch14.addConstraint(Sketcher.Constraint("DistanceX", 1, 1, 1, 2, 23.0))
sketch14.addConstraint(Sketcher.Constraint("DistanceY", 0, 1, 0, 2, 7.5))
sketch14.addConstraint(Sketcher.Constraint("DistanceX", -1, 1, 0, 2, 14.67094))
pad14 = body14.newObject("PartDesign::Pad", "Pad013")
pad14.Profile = sketch14
pad14.Length = 3
pad14.Reversed = True
body15 = doc.addObject("PartDesign::Body", "Body014")

sketch15 = body15.newObject("Sketcher::SketchObject", "Sketch014")
sketch15.AttachmentSupport = (doc.getObject("XZ_Plane014"), [""])
sketch15.MapMode = "FlatFace"
sketch15.addGeometry(Part.LineSegment(V(-9, 2, 0), V(-9, 9, 0)), False)
sketch15.addGeometry(Part.LineSegment(V(-9, 9, 0), V(14, 9, 0)), False)
sketch15.addGeometry(Part.LineSegment(V(14, 9, 0), V(14, 2, 0)), False)
sketch15.addGeometry(Part.LineSegment(V(14, 2, 0), V(-9, 2, 0)), False)
sketch15.addConstraint(Sketcher.Constraint("Coincident", 0, 2, 1, 1))
sketch15.addConstraint(Sketcher.Constraint("Coincident", 1, 2, 2, 1))
sketch15.addConstraint(Sketcher.Constraint("Coincident", 2, 2, 3, 1))
sketch15.addConstraint(Sketcher.Constraint("Coincident", 3, 2, 0, 1))
sketch15.addConstraint(Sketcher.Constraint("Vertical", 0))
sketch15.addConstraint(Sketcher.Constraint("Horizontal", 1))
sketch15.addConstraint(Sketcher.Constraint("Vertical", 2))
sketch15.addConstraint(Sketcher.Constraint("Horizontal", 3))
sketch15.addConstraint(Sketcher.Constraint("DistanceX", 1, 1, 1, 2, 23.0))
sketch15.addConstraint(Sketcher.Constraint("DistanceY", 0, 1, 0, 2, 7.5))
sketch15.addConstraint(Sketcher.Constraint("DistanceY", -1, 1, 0, 2, 9.17))
sketch15.addConstraint(Sketcher.Constraint("DistanceX", 0, 2, -1, 1, 9.32906))
pad15 = body15.newObject("PartDesign::Pad", "Pad014")
pad15.Profile = sketch15
pad15.Length = 3
pad15.Reversed = True
body16 = doc.addObject("PartDesign::Body", "Body015")

sketch16 = body16.newObject("Sketcher::SketchObject", "Sketch015")
sketch16.AttachmentSupport = (doc.getObject("XZ_Plane015"), [""])
sketch16.MapMode = "FlatFace"
sketch16.addGeometry(Part.LineSegment(V(14.7, -9.2, 0), V(37.7, -9.2, 0)), False)
sketch16.addGeometry(Part.LineSegment(V(37.7, -9.2, 0), V(37.7, -14.2, 0)), False)
sketch16.addGeometry(Part.ArcOfCircle(Part.Circle(V(35.2, -14.2, 0), V(0, 0, 1), 2.5), math.radians(-90), math.radians(0)), False)
sketch16.addGeometry(Part.LineSegment(V(35.2, -16.7, 0), V(14.7, -16.7, 0)), False)
sketch16.addGeometry(Part.LineSegment(V(14.7, -16.7, 0), V(14.7, -9.2, 0)), False)
sketch16.addConstraint(Sketcher.Constraint("Coincident", 0, 2, 1, 1))
sketch16.addConstraint(Sketcher.Constraint("Tangent", 1, 2, 2, 2))
sketch16.addConstraint(Sketcher.Constraint("Tangent", 2, 1, 3, 1))
sketch16.addConstraint(Sketcher.Constraint("Coincident", 3, 2, 4, 1))
sketch16.addConstraint(Sketcher.Constraint("Coincident", 4, 2, 0, 1))
sketch16.addConstraint(Sketcher.Constraint("Horizontal", 0))
sketch16.addConstraint(Sketcher.Constraint("Vertical", 1))
sketch16.addConstraint(Sketcher.Constraint("Horizontal", 3))
sketch16.addConstraint(Sketcher.Constraint("Vertical", 4))
sketch16.addConstraint(Sketcher.Constraint("Radius", 2, 2.5))
sketch16.addConstraint(Sketcher.Constraint("DistanceX", 0, 1, 0, 2, 23.0))
sketch16.addConstraint(Sketcher.Constraint("DistanceY", 1, 2, 1, 1, 5.0))
sketch16.addConstraint(Sketcher.Constraint("DistanceY", 2, 3, -1, 1, 14.17))
sketch16.addConstraint(Sketcher.Constraint("DistanceX", -1, 1, 2, 3, 35.17094))
pad16 = body16.newObject("PartDesign::Pad", "Pad015")
pad16.Profile = sketch16
pad16.Length = 3
pad16.Reversed = True

doc.recompute()
